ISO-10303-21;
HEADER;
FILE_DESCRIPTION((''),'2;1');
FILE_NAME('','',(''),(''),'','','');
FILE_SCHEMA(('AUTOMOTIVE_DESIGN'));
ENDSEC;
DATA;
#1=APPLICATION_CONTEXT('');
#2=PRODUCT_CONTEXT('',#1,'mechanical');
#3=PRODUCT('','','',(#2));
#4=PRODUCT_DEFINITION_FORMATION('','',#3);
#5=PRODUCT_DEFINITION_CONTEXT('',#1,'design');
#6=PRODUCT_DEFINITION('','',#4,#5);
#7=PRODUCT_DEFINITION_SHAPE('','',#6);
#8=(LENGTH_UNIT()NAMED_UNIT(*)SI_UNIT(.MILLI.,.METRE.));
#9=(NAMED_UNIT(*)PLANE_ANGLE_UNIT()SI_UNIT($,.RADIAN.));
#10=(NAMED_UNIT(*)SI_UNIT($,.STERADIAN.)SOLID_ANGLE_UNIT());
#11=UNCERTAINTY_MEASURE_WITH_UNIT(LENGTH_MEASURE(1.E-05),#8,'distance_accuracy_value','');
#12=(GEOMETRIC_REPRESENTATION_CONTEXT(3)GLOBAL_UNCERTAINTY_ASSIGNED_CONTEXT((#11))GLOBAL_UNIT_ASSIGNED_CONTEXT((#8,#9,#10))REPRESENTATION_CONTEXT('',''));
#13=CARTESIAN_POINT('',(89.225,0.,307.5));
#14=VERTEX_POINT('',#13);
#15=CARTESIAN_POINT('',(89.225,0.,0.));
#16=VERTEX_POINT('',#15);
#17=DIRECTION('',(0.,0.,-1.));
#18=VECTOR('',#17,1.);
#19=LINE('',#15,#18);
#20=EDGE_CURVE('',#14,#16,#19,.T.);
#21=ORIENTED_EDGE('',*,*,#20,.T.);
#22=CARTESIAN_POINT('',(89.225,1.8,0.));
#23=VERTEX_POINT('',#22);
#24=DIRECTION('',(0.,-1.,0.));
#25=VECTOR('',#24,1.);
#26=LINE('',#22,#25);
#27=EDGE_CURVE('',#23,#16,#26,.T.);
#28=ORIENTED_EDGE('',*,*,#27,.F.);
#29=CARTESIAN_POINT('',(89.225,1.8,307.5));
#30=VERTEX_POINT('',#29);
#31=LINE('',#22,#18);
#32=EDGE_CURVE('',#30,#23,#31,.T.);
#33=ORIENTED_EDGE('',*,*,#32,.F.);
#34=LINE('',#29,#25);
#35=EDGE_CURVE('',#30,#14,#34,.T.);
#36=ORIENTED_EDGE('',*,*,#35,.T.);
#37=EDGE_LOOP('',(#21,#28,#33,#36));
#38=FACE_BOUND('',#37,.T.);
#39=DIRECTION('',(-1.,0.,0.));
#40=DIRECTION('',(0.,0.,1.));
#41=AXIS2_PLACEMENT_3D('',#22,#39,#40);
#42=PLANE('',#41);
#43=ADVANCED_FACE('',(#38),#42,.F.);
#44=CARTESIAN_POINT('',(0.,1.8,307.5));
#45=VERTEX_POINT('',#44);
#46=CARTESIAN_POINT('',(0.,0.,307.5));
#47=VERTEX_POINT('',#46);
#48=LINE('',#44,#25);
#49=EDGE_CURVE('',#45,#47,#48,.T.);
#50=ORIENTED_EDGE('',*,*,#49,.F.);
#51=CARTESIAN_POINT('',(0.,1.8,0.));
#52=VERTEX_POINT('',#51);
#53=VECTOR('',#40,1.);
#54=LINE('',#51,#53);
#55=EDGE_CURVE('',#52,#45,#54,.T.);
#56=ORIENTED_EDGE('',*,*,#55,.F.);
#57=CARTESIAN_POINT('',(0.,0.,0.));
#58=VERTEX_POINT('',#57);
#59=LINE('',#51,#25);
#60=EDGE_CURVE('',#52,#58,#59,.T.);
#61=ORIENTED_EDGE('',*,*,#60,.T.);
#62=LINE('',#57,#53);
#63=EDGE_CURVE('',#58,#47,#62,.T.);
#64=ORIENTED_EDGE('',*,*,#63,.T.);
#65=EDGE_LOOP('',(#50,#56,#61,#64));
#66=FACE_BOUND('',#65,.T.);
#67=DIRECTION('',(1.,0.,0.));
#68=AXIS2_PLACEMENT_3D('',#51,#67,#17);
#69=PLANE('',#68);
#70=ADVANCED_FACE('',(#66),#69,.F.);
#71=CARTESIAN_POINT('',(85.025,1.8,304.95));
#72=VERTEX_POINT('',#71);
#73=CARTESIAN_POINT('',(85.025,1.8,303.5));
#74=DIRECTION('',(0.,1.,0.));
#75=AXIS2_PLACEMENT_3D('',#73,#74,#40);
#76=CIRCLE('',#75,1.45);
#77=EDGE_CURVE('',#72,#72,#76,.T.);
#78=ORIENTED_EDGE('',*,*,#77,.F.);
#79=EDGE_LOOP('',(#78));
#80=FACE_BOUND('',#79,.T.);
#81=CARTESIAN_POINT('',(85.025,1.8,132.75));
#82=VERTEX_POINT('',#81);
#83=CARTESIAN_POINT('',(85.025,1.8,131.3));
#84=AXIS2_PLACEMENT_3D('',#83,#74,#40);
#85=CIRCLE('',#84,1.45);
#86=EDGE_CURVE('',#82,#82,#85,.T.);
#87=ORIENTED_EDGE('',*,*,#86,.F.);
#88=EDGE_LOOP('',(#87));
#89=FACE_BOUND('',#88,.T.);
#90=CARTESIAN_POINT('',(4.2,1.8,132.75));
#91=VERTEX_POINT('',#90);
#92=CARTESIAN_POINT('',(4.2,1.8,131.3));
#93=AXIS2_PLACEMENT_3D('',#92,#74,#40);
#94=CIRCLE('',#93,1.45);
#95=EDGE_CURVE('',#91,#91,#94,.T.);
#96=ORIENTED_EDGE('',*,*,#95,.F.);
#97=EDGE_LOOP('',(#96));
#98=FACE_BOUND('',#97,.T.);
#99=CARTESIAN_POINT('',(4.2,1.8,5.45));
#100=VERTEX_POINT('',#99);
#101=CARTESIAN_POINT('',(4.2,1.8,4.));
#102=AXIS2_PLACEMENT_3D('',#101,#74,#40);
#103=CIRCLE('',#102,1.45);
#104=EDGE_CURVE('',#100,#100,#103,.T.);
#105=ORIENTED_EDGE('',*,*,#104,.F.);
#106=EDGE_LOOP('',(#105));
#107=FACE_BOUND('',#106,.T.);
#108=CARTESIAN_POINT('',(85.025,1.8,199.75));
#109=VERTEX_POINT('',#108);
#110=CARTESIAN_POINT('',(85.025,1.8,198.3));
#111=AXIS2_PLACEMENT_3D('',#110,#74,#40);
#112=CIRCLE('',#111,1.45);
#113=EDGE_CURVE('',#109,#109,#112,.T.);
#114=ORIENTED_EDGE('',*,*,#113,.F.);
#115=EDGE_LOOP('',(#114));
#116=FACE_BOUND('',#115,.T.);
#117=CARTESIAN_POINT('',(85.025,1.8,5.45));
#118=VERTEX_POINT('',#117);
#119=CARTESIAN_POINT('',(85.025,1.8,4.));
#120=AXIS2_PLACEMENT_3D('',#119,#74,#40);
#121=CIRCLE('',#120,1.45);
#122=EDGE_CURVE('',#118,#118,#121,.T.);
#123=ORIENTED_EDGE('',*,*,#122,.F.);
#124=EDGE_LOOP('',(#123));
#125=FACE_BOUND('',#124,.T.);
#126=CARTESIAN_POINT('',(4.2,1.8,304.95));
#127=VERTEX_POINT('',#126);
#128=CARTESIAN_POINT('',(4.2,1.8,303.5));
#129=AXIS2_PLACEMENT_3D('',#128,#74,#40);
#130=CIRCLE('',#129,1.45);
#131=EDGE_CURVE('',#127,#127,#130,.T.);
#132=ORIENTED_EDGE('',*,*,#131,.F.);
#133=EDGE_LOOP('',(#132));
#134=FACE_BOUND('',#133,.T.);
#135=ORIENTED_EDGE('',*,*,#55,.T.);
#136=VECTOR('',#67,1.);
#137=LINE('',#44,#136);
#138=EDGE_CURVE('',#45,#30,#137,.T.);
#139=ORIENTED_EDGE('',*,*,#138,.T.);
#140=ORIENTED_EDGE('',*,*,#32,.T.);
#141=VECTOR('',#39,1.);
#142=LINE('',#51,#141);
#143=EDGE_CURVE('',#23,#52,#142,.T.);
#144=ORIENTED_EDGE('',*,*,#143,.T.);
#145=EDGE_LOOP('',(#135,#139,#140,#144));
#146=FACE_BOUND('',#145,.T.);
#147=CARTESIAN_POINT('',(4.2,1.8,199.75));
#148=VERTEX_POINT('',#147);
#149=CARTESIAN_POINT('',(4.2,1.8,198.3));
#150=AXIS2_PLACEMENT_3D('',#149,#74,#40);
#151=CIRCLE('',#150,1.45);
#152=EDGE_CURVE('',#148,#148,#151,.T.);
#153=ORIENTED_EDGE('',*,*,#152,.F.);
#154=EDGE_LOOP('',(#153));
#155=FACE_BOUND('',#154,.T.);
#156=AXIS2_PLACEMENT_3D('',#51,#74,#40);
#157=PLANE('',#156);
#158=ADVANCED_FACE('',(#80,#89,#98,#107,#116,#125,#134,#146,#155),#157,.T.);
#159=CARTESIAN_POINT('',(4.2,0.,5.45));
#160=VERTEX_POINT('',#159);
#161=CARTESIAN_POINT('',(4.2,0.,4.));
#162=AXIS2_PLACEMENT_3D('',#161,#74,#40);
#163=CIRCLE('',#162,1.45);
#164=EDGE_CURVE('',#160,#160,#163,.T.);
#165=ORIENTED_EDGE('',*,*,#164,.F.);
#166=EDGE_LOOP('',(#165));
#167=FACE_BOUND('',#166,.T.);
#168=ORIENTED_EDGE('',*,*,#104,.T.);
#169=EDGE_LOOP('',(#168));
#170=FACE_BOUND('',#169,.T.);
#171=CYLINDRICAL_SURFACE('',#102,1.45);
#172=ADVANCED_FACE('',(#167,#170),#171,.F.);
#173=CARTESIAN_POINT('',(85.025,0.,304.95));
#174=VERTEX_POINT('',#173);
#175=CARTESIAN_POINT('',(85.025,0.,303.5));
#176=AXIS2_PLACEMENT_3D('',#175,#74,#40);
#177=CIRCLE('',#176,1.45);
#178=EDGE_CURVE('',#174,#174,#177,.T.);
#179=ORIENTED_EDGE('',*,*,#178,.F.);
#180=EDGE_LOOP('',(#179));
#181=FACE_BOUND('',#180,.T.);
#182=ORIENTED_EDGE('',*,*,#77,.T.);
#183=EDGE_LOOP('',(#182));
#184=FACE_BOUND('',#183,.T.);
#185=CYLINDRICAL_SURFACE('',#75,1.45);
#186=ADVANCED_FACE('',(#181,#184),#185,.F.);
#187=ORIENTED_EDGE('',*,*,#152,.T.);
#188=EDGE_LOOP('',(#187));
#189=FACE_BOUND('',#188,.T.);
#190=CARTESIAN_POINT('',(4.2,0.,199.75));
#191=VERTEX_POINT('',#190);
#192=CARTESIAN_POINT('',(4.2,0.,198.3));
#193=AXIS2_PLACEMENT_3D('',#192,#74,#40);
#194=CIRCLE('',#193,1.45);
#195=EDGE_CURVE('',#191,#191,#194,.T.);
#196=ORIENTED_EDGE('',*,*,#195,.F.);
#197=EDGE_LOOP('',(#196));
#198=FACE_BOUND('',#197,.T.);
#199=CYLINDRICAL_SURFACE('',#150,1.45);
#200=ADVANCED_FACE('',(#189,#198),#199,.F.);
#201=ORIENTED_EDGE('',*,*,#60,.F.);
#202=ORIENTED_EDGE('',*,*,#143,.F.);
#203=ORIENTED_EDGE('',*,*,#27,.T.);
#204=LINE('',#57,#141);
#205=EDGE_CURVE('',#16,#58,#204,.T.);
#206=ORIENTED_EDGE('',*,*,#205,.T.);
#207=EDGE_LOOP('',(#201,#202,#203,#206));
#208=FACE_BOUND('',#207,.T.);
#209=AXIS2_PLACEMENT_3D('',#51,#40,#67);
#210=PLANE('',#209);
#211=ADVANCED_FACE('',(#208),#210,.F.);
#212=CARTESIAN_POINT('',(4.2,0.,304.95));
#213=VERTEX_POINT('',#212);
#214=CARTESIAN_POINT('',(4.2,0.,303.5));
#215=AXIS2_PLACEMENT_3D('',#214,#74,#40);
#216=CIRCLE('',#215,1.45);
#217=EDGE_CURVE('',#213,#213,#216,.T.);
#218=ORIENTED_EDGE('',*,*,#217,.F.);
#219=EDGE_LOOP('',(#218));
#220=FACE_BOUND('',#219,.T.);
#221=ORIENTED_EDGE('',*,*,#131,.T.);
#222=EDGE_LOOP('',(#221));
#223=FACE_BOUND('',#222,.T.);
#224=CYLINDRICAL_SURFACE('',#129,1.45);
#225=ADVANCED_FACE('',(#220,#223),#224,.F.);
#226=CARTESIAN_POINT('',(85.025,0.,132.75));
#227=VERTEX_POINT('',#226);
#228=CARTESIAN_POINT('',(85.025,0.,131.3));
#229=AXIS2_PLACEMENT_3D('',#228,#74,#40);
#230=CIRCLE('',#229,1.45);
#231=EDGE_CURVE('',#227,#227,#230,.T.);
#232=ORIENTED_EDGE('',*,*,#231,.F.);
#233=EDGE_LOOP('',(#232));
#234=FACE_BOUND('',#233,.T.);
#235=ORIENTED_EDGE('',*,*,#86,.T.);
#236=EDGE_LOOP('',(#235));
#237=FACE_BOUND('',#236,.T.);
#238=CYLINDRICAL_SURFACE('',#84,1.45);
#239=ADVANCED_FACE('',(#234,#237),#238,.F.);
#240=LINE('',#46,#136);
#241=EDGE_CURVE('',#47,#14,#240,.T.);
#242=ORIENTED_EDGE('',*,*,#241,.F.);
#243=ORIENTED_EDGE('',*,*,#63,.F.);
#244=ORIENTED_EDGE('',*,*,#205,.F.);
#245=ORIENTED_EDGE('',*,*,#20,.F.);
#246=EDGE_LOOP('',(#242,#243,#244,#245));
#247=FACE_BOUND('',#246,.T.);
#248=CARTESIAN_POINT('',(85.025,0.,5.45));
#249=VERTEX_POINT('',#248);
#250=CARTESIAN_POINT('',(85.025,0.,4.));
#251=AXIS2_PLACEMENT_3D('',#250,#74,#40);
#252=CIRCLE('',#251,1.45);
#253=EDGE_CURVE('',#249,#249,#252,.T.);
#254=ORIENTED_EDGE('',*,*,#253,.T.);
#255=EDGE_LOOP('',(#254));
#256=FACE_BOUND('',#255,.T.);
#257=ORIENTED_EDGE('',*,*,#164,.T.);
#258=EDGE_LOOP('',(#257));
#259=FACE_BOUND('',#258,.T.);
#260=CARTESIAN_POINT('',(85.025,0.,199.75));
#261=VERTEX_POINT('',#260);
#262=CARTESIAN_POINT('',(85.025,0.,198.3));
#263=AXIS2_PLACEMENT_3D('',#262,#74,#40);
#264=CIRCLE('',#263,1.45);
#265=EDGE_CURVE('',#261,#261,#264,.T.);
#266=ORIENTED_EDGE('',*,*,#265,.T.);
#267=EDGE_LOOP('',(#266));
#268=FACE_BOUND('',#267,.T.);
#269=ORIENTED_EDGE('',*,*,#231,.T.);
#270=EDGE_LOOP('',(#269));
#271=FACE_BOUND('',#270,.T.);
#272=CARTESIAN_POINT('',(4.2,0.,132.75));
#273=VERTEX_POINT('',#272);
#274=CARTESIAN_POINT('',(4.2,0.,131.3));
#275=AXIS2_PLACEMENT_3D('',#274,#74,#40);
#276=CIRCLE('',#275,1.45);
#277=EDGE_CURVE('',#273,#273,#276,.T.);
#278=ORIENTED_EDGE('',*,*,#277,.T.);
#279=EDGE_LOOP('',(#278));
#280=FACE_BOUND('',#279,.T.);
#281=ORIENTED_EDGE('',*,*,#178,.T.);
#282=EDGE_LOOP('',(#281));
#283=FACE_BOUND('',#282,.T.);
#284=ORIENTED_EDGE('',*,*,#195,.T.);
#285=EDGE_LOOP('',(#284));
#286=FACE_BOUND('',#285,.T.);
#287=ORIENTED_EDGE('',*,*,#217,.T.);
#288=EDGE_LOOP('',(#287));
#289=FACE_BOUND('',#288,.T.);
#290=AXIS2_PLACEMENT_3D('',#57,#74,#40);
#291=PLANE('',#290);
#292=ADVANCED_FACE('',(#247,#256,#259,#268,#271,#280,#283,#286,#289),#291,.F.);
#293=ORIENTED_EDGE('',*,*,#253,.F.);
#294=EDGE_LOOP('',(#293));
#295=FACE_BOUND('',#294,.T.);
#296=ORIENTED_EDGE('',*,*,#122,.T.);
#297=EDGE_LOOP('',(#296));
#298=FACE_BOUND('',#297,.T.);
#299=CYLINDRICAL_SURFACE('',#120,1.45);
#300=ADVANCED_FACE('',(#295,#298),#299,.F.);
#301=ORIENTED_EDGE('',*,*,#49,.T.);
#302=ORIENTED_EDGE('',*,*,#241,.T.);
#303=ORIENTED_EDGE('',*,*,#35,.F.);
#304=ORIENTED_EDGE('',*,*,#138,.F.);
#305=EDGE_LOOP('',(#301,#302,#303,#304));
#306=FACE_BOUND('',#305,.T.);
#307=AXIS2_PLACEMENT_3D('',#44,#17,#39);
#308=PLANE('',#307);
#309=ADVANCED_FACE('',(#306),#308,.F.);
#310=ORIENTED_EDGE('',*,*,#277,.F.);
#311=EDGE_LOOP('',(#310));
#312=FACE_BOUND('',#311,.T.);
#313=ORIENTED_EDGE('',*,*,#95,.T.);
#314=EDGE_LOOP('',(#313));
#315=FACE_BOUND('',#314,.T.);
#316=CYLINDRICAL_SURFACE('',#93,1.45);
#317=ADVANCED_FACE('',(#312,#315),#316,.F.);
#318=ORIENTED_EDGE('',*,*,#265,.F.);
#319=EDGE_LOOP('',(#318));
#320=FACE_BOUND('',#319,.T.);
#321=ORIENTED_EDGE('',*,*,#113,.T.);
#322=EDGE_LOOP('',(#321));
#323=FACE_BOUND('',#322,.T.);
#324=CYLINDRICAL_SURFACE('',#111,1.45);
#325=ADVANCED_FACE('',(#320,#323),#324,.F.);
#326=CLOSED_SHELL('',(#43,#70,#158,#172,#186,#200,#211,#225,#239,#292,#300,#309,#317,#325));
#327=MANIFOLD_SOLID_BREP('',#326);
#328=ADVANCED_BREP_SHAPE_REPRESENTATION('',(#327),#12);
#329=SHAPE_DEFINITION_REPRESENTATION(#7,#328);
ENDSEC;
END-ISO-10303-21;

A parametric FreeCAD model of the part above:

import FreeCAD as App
import Part
import Sketcher


def add_polygon(sketch, points):
    """Adds a closed chain of lines whose ends are joined by coincident constraints."""
    first, n = sketch.GeometryCount, len(points)
    for a, b in zip(points, points[1:] + points[:1]):
        sketch.addGeometry(Part.LineSegment(App.Vector(*a, 0), App.Vector(*b, 0)), False)
    for i in range(n):
        sketch.addConstraint(Sketcher.Constraint("Coincident", first + i, 2, first + (i + 1) % n, 1))

doc = App.newDocument("Part")
body = doc.addObject("PartDesign::Body", "Body")

# Sketch on XZ plane
sketch1 = doc.addObject("Sketcher::SketchObject", "Sketch")
body.addObject(sketch1)
sketch1.AttachmentSupport = (doc.XZ_Plane, [""])
sketch1.MapMode = "FlatFace"
add_polygon(sketch1, [(0, 0), (0, 307.5), (89.225, 307.5), (89.225, 0)])  # lines 0-3
sketch1.addConstraint([
    Sketcher.Constraint("Vertical", 0),
    Sketcher.Constraint("Horizontal", 1),
    Sketcher.Constraint("Vertical", 2),
    Sketcher.Constraint("Horizontal", 3),
    Sketcher.Constraint("Coincident", 3, 2, -1, 1),
    Sketcher.Constraint("DistanceY", 0, 1, 0, 2, 307.5),
    Sketcher.Constraint("DistanceX", 1, 1, 1, 2, 89.225),
])
pad1 = doc.addObject("PartDesign::Pad", "Pad")
body.addObject(pad1)
pad1.Profile = sketch1
pad1.Length = 1.8
pad1.Reversed = True

# Sketch on XZ plane
sketch2 = doc.addObject("Sketcher::SketchObject", "Sketch001")
body.addObject(sketch2)
sketch2.AttachmentSupport = (doc.XZ_Plane, [""])
sketch2.MapMode = "FlatFace"
sketch2.AttachmentOffset = App.Placement(App.Vector(0, 0, -1.8), App.Rotation())
sketch2.addGeometry([
    Part.Circle(App.Vector(4.2, 4, 0), App.Vector(0, 0, 1), 1.45),  # 0
    Part.Circle(App.Vector(85.025, 4, 0), App.Vector(0, 0, 1), 1.45),  # 1
    Part.Circle(App.Vector(85.025, 131.3, 0), App.Vector(0, 0, 1), 1.45),  # 2
    Part.Circle(App.Vector(85.025, 198.3, 0), App.Vector(0, 0, 1), 1.45),  # 3
    Part.Circle(App.Vector(85.025, 303.5, 0), App.Vector(0, 0, 1), 1.45),  # 4
    Part.Circle(App.Vector(4.2, 303.5, 0), App.Vector(0, 0, 1), 1.45),  # 5
    Part.Circle(App.Vector(4.2, 198.3, 0), App.Vector(0, 0, 1), 1.45),  # 6
    Part.Circle(App.Vector(4.2, 131.3, 0), App.Vector(0, 0, 1), 1.45),  # 7
], False)
sketch2.addConstraint([
    Sketcher.Constraint("Equal", 0, 1),
    Sketcher.Constraint("Equal", 1, 2),
    Sketcher.Constraint("Equal", 2, 3),
    Sketcher.Constraint("Equal", 3, 4),
    Sketcher.Constraint("Equal", 4, 5),
    Sketcher.Constraint("Equal", 5, 6),
    Sketcher.Constraint("Equal", 6, 7),
    Sketcher.Constraint("Horizontal", 0, 3, 1, 3),
    Sketcher.Constraint("Horizontal", 4, 3, 5, 3),
    Sketcher.Constraint("Horizontal", 3, 3, 6, 3),
    Sketcher.Constraint("Horizontal", 2, 3, 7, 3),
    Sketcher.Constraint("Vertical", 1, 3, 2, 3),
    Sketcher.Constraint("Vertical", 2, 3, 3, 3),
    Sketcher.Constraint("Vertical", 3, 3, 4, 3),
    Sketcher.Constraint("Vertical", 0, 3, 5, 3),
    Sketcher.Constraint("Vertical", 5, 3, 6, 3),
    Sketcher.Constraint("Vertical", 6, 3, 7, 3),
    Sketcher.Constraint("Diameter", 0, 2.9),
    Sketcher.Constraint("DistanceY", -1, 1, 0, 3, 4.0),
    Sketcher.Constraint("DistanceY", 2, 3, 3, 3, 67.0),
    Sketcher.Constraint("DistanceX", -1, 1, 0, 3, 4.2),
    Sketcher.Constraint("DistanceY", -1, 1, 2, 3, 131.3),
    Sketcher.Constraint("DistanceY", -1, 1, 4, 3, 303.5),
    Sketcher.Constraint("DistanceX", -1, 1, 1, 3, 85.025),
])
doc.recompute()
hole = doc.addObject("PartDesign::Hole", "Hole")
body.addObject(hole)
hole.Profile = sketch2
hole.ThreadType = "None"
hole.Diameter = 2.9
hole.DepthType = "ThroughAll"
hole.Reversed = True

doc.recompute()
